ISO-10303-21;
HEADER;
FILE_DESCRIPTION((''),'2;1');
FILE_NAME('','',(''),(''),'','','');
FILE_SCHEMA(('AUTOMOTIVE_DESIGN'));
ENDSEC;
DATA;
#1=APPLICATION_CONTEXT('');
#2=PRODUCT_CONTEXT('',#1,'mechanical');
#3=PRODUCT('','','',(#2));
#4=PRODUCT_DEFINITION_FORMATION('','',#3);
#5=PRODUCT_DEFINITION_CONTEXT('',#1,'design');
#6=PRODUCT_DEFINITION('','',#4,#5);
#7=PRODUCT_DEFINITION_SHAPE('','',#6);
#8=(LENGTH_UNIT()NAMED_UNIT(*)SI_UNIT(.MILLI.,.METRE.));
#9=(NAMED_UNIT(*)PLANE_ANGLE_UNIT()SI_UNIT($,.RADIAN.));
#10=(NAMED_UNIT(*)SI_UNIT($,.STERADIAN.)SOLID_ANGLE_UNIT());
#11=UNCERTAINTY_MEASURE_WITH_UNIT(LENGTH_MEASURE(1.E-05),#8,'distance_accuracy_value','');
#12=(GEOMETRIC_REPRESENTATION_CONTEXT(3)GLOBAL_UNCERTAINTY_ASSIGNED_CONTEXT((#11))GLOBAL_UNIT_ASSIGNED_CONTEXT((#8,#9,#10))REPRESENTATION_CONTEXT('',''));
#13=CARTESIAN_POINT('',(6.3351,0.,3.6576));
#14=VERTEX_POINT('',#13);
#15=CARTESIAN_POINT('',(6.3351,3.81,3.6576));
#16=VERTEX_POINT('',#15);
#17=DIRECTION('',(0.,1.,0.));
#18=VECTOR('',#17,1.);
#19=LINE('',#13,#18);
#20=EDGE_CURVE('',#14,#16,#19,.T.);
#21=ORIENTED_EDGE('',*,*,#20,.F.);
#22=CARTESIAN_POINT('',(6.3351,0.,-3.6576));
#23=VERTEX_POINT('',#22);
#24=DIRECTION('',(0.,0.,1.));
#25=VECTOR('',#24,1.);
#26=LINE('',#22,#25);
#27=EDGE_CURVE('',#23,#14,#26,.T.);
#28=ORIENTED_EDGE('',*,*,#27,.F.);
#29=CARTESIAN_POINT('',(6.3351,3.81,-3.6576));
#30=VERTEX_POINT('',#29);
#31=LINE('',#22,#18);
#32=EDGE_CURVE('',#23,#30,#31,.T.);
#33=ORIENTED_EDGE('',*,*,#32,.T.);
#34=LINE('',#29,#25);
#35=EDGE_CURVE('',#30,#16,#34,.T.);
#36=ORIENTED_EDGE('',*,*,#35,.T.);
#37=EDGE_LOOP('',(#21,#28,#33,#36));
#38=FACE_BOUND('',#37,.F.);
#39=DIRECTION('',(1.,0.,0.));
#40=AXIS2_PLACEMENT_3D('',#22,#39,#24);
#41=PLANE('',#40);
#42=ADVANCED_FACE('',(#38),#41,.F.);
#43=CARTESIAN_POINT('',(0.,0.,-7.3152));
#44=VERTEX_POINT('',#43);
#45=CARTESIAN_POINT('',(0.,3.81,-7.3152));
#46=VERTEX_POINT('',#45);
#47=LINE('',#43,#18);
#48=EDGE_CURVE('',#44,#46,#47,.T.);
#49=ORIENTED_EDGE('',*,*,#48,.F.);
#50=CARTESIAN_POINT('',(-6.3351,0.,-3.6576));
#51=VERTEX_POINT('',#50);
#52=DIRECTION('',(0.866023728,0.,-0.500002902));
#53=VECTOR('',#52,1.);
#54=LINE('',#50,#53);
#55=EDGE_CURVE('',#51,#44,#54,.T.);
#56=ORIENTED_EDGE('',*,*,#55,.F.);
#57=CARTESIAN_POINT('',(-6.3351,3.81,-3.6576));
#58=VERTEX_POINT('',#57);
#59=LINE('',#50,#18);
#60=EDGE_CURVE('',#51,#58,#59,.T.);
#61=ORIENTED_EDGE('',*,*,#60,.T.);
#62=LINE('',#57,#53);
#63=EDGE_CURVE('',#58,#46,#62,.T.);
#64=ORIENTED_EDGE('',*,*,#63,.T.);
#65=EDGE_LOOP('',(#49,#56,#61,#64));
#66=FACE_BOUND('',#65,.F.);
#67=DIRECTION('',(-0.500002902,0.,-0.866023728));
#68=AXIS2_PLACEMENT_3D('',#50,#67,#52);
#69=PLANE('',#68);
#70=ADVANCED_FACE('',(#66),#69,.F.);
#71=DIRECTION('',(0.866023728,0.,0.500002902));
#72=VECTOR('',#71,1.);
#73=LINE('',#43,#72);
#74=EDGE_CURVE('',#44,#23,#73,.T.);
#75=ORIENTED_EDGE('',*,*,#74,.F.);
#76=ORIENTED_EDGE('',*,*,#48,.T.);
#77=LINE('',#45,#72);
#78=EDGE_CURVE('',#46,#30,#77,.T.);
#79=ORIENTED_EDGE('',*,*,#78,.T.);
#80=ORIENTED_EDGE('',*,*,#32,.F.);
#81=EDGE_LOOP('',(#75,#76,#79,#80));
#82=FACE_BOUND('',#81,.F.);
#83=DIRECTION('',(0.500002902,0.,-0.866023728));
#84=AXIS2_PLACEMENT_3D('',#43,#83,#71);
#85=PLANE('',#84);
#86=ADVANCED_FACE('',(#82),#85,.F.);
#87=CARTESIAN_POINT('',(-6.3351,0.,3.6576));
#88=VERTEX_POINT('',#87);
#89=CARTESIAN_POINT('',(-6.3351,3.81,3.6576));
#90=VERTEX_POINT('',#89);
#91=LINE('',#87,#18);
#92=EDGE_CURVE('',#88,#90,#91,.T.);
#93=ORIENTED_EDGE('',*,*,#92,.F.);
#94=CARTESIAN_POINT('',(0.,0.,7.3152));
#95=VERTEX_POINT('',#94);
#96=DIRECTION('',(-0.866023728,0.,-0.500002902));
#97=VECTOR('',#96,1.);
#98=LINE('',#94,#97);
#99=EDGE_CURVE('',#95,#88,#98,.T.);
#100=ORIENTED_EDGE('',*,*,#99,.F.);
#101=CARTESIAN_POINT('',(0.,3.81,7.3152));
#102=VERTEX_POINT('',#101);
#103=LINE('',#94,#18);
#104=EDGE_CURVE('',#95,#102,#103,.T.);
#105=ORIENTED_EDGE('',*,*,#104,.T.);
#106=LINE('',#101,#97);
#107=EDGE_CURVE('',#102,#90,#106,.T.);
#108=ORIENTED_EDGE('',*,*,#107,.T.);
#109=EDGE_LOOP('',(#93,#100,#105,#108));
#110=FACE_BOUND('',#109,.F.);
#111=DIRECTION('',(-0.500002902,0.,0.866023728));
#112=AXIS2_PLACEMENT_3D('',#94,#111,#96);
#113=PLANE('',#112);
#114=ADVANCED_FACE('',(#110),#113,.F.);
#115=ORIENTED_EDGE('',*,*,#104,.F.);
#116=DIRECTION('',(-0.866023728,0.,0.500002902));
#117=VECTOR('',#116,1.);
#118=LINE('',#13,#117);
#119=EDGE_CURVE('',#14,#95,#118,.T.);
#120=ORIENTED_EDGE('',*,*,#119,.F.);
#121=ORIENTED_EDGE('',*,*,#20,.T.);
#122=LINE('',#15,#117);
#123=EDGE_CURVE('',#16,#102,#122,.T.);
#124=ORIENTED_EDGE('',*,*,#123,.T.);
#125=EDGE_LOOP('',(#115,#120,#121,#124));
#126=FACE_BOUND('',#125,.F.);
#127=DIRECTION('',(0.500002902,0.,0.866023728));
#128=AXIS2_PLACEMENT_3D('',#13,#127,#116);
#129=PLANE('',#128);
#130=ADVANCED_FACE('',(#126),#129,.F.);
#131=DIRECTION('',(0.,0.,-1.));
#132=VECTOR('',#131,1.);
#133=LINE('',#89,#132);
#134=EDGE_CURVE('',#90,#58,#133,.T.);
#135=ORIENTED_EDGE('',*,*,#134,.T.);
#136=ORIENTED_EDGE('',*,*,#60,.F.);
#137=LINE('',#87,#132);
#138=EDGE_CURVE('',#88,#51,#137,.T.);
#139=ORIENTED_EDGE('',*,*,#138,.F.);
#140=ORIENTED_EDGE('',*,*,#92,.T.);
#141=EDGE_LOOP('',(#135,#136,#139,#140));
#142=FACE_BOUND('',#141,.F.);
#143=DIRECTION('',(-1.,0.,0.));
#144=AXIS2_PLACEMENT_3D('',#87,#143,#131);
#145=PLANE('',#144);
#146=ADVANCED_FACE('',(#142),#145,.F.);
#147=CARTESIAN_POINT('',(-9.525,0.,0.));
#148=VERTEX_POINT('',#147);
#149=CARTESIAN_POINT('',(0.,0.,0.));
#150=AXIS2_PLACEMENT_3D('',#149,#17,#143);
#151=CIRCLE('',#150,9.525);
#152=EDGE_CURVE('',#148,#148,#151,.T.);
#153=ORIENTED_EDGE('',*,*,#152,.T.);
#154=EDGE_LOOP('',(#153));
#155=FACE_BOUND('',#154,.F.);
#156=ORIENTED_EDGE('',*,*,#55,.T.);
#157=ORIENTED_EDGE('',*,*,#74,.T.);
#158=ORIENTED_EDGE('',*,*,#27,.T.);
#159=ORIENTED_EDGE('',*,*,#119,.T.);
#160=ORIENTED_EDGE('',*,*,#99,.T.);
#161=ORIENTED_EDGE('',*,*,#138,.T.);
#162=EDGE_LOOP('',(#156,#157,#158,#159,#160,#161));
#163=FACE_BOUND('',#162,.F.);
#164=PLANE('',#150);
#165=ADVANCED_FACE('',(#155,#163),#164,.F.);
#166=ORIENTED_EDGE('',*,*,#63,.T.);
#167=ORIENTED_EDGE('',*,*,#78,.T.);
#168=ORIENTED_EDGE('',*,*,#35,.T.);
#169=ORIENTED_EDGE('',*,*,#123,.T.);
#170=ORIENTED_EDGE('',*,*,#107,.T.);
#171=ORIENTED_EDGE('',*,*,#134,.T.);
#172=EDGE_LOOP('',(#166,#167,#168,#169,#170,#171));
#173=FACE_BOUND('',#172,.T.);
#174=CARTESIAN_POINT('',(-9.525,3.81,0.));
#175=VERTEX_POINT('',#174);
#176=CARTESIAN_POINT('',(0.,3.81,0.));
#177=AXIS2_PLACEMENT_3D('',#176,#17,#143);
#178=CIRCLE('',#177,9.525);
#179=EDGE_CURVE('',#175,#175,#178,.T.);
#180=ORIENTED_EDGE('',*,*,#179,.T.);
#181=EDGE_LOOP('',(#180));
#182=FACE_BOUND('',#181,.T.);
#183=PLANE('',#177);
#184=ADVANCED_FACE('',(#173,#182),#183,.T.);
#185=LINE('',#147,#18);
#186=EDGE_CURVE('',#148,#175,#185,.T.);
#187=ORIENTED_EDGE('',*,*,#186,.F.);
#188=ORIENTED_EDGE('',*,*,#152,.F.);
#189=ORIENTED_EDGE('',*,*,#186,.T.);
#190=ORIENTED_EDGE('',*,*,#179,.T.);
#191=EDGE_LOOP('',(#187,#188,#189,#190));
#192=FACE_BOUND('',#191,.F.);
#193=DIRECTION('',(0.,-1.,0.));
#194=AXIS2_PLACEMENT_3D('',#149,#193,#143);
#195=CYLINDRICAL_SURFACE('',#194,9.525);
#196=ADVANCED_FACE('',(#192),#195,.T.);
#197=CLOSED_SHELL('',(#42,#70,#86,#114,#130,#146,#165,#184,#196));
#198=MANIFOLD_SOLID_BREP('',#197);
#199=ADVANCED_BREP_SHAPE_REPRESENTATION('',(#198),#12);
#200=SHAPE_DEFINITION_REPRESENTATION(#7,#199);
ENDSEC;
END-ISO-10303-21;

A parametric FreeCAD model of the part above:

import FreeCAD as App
import Part
import Sketcher
from FreeCAD import Vector
Q = App.Units.Quantity

doc = App.newDocument("Part")
body = doc.addObject("PartDesign::Body", "Body")

sketch1 = body.newObject("Sketcher::SketchObject", "Sketch")
sketch1.AttachmentSupport = (doc.getObject("XZ_Plane"), [""])
sketch1.MapMode = "FlatFace"
sketch1.addGeometry(Part.Circle(Vector(0, 0, 0), Vector(0, 0, 1), 10), False)
sketch1.addGeometry(Part.LineSegment(Vector(-6, -4, 0), Vector(0, -7, 0)), False)
sketch1.addGeometry(Part.LineSegment(Vector(0, -7, 0), Vector(6, -4, 0)), False)
sketch1.addGeometry(Part.LineSegment(Vector(6, -4, 0), Vector(6, 4, 0)), False)
sketch1.addGeometry(Part.LineSegment(Vector(6, 4, 0), Vector(0, 7, 0)), False)
sketch1.addGeometry(Part.LineSegment(Vector(0, 7, 0), Vector(-6, 4, 0)), False)
sketch1.addGeometry(Part.LineSegment(Vector(-6, 4, 0), Vector(-6, -4, 0)), False)
sketch1.addConstraint(Sketcher.Constraint("Coincident", 1, 2, 2, 1))
sketch1.addConstraint(Sketcher.Constraint("Coincident", 2, 2, 3, 1))
sketch1.addConstraint(Sketcher.Constraint("Coincident", 3, 2, 4, 1))
sketch1.addConstraint(Sketcher.Constraint("Coincident", 4, 2, 5, 1))
sketch1.addConstraint(Sketcher.Constraint("Coincident", 5, 2, 6, 1))
sketch1.addConstraint(Sketcher.Constraint("Coincident", 6, 2, 1, 1))
sketch1.addConstraint(Sketcher.Constraint("Vertical", 3))
sketch1.addConstraint(Sketcher.Constraint("Vertical", 6))
sketch1.addConstraint(Sketcher.Constraint("Coincident", 0, 3, -1, 1))
sketch1.addConstraint(Sketcher.Constraint("Symmetric", 1, 2, 4, 2, -1, 1))
sketch1.addConstraint(Sketcher.Constraint("Symmetric", 2, 2, 5, 2, -1, 1))
sketch1.addConstraint(Sketcher.Constraint("PointOnObject", 1, 2, -2))
sketch1.addConstraint(Sketcher.Constraint("Parallel", 1, 4))
sketch1.addConstraint(Sketcher.Constraint("Horizontal", 3, 2, 5, 2))
sketch1.addConstraint(Sketcher.Constraint("Diameter", 0, Q("0.75 in")))
sketch1.addConstraint(Sketcher.Constraint("DistanceY", 3, 1, 3, 2, Q("0.288 in")))
sketch1.addConstraint(Sketcher.Constraint("Distance", 1, Q("0.288 in")))
sketch1.addConstraint(Sketcher.Constraint("DistanceY", 1, 2, -1, 1, Q("0.288 in")))
pad1 = body.newObject("PartDesign::Pad", "Pad")
pad1.Profile = sketch1
pad1.Length = Q("0.15 in")
pad1.Reversed = True

doc.recompute()
